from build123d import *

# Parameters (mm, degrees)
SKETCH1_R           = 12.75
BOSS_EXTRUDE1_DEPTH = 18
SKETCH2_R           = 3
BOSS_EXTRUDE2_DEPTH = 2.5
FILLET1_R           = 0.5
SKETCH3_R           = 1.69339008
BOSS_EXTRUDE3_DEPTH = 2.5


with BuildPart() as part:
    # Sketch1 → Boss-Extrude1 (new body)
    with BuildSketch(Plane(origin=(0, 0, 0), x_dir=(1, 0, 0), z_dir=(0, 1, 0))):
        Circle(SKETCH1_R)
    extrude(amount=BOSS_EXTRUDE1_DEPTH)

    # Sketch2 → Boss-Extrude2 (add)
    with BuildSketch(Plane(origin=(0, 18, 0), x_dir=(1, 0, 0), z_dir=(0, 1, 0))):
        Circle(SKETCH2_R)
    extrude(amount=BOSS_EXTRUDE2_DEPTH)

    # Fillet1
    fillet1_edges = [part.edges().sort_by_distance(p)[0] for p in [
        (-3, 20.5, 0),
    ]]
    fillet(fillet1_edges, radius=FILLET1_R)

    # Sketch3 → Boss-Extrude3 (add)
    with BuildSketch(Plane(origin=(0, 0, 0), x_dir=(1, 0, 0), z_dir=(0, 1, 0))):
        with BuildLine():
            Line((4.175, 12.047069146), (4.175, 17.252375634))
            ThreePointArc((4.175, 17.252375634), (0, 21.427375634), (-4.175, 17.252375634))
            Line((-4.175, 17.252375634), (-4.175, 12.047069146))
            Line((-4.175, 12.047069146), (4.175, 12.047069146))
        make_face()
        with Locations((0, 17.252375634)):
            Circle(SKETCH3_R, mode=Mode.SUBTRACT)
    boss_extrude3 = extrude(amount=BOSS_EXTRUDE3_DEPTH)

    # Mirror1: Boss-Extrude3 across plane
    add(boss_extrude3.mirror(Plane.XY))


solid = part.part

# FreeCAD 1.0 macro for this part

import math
import FreeCAD as App
import Part
import Sketcher
from FreeCAD import Vector
Q = App.Units.Quantity


def edges_at(feature, points):
    """Names of the edges that pass closest to the given points."""
    edges = feature.Shape.Edges
    near = lambda p: min(range(len(edges)), key=lambda i: edges[i].distToShape(Part.Vertex(*p))[0])
    return sorted({f"Edge{near(p) + 1}" for p in points})

doc = App.newDocument("Part")
body = doc.addObject("PartDesign::Body", "Body")

# Sketch on XZ plane
sketch1 = doc.addObject("Sketcher::SketchObject", "Sketch")
body.addObject(sketch1)
sketch1.AttachmentSupport = (doc.XZ_Plane, [""])
sketch1.MapMode = "FlatFace"
sketch1.addGeometry(Part.Circle(Vector(0, 0, 0), Vector(0, 0, 1), 12.75), False)
sketch1.addConstraint([
    Sketcher.Constraint("Coincident", 0, 3, -1, 1),
    Sketcher.Constraint("Diameter", 0, Q("25.5 mm")),
])
pad1 = doc.addObject("PartDesign::Pad", "Pad")
body.addObject(pad1)
pad1.Profile = sketch1
pad1.Length = 18
pad1.Reversed = True

# Sketch on XZ plane
sketch2 = doc.addObject("Sketcher::SketchObject", "Sketch001")
body.addObject(sketch2)
sketch2.AttachmentSupport = (doc.XZ_Plane, [""])
sketch2.MapMode = "FlatFace"
sketch2.AttachmentOffset = App.Placement(Vector(0, 0, -18), App.Rotation())
sketch2.addGeometry(Part.Circle(Vector(0, 0, 0), Vector(0, 0, 1), 3), False)
sketch2.addConstraint([
    Sketcher.Constraint("Coincident", 0, 3, -1, 1),
    Sketcher.Constraint("Diameter", 0, Q("6 mm")),
])
pad2 = doc.addObject("PartDesign::Pad", "Pad001")
body.addObject(pad2)
pad2.Profile = sketch2
pad2.Length = 2.5
pad2.Reversed = True
doc.recompute()

fillet = doc.addObject("PartDesign::Fillet", "Fillet")
body.addObject(fillet)
fillet.Base = (pad2, edges_at(pad2, [(-3, 20.5, 0)]))
fillet.Radius = 0.5

# Sketch on XZ plane
sketch3 = doc.addObject("Sketcher::SketchObject", "Sketch002")
body.addObject(sketch3)
sketch3.AttachmentSupport = (doc.XZ_Plane, [""])
sketch3.MapMode = "FlatFace"
sketch3.addGeometry([
    Part.LineSegment(Vector(4.175, -12.047069, 0), Vector(4.175, -17.252376, 0)),  # 0
    Part.ArcOfCircle(Part.Circle(Vector(0, -17.252376, 0), Vector(0, 0, 1), 4.175), math.radians(180), math.radians(360)),  # 1
    Part.LineSegment(Vector(-4.175, -17.252376, 0), Vector(-4.175, -12.047069, 0)),  # 2
    Part.LineSegment(Vector(-4.175, -12.047069, 0), Vector(4.175, -12.047069, 0)),  # 3
    Part.Circle(Vector(0, -17.252376, 0), Vector(0, 0, 1), 1.69339),  # 4
], False)
sketch3.addConstraint([
    Sketcher.Constraint("Tangent", 0, 2, 1, 2),
    Sketcher.Constraint("Tangent", 1, 1, 2, 1),
    Sketcher.Constraint("Coincident", 2, 2, 3, 1),
    Sketcher.Constraint("Coincident", 3, 2, 0, 1),
    Sketcher.Constraint("Vertical", 0),
    Sketcher.Constraint("Vertical", 2),
    Sketcher.Constraint("Horizontal", 3),
    Sketcher.Constraint("Coincident", 4, 3, 1, 3),
    Sketcher.Constraint("PointOnObject", 1, 3, -2),
    Sketcher.Constraint("Radius", 1, Q("4.175 mm")),
    Sketcher.Constraint("Diameter", 4, Q("3.38678 mm")),
    Sketcher.Constraint("DistanceY", 0, 2, 0, 1, Q("5.205306 mm")),
    Sketcher.Constraint("DistanceY", 2, 2, -1, 1, Q("12.047069 mm")),
])
pad3 = doc.addObject("PartDesign::Pad", "Pad002")
body.addObject(pad3)
pad3.Profile = sketch3
pad3.Length = 2.5
pad3.Reversed = True
doc.recompute()

mirrored = doc.addObject("PartDesign::Mirrored", "Mirrored")
body.addObject(mirrored)
mirrored.Originals = [pad3]
mirrored.MirrorPlane = (doc.XY_Plane, [""])
body.Tip = mirrored

doc.recompute()
